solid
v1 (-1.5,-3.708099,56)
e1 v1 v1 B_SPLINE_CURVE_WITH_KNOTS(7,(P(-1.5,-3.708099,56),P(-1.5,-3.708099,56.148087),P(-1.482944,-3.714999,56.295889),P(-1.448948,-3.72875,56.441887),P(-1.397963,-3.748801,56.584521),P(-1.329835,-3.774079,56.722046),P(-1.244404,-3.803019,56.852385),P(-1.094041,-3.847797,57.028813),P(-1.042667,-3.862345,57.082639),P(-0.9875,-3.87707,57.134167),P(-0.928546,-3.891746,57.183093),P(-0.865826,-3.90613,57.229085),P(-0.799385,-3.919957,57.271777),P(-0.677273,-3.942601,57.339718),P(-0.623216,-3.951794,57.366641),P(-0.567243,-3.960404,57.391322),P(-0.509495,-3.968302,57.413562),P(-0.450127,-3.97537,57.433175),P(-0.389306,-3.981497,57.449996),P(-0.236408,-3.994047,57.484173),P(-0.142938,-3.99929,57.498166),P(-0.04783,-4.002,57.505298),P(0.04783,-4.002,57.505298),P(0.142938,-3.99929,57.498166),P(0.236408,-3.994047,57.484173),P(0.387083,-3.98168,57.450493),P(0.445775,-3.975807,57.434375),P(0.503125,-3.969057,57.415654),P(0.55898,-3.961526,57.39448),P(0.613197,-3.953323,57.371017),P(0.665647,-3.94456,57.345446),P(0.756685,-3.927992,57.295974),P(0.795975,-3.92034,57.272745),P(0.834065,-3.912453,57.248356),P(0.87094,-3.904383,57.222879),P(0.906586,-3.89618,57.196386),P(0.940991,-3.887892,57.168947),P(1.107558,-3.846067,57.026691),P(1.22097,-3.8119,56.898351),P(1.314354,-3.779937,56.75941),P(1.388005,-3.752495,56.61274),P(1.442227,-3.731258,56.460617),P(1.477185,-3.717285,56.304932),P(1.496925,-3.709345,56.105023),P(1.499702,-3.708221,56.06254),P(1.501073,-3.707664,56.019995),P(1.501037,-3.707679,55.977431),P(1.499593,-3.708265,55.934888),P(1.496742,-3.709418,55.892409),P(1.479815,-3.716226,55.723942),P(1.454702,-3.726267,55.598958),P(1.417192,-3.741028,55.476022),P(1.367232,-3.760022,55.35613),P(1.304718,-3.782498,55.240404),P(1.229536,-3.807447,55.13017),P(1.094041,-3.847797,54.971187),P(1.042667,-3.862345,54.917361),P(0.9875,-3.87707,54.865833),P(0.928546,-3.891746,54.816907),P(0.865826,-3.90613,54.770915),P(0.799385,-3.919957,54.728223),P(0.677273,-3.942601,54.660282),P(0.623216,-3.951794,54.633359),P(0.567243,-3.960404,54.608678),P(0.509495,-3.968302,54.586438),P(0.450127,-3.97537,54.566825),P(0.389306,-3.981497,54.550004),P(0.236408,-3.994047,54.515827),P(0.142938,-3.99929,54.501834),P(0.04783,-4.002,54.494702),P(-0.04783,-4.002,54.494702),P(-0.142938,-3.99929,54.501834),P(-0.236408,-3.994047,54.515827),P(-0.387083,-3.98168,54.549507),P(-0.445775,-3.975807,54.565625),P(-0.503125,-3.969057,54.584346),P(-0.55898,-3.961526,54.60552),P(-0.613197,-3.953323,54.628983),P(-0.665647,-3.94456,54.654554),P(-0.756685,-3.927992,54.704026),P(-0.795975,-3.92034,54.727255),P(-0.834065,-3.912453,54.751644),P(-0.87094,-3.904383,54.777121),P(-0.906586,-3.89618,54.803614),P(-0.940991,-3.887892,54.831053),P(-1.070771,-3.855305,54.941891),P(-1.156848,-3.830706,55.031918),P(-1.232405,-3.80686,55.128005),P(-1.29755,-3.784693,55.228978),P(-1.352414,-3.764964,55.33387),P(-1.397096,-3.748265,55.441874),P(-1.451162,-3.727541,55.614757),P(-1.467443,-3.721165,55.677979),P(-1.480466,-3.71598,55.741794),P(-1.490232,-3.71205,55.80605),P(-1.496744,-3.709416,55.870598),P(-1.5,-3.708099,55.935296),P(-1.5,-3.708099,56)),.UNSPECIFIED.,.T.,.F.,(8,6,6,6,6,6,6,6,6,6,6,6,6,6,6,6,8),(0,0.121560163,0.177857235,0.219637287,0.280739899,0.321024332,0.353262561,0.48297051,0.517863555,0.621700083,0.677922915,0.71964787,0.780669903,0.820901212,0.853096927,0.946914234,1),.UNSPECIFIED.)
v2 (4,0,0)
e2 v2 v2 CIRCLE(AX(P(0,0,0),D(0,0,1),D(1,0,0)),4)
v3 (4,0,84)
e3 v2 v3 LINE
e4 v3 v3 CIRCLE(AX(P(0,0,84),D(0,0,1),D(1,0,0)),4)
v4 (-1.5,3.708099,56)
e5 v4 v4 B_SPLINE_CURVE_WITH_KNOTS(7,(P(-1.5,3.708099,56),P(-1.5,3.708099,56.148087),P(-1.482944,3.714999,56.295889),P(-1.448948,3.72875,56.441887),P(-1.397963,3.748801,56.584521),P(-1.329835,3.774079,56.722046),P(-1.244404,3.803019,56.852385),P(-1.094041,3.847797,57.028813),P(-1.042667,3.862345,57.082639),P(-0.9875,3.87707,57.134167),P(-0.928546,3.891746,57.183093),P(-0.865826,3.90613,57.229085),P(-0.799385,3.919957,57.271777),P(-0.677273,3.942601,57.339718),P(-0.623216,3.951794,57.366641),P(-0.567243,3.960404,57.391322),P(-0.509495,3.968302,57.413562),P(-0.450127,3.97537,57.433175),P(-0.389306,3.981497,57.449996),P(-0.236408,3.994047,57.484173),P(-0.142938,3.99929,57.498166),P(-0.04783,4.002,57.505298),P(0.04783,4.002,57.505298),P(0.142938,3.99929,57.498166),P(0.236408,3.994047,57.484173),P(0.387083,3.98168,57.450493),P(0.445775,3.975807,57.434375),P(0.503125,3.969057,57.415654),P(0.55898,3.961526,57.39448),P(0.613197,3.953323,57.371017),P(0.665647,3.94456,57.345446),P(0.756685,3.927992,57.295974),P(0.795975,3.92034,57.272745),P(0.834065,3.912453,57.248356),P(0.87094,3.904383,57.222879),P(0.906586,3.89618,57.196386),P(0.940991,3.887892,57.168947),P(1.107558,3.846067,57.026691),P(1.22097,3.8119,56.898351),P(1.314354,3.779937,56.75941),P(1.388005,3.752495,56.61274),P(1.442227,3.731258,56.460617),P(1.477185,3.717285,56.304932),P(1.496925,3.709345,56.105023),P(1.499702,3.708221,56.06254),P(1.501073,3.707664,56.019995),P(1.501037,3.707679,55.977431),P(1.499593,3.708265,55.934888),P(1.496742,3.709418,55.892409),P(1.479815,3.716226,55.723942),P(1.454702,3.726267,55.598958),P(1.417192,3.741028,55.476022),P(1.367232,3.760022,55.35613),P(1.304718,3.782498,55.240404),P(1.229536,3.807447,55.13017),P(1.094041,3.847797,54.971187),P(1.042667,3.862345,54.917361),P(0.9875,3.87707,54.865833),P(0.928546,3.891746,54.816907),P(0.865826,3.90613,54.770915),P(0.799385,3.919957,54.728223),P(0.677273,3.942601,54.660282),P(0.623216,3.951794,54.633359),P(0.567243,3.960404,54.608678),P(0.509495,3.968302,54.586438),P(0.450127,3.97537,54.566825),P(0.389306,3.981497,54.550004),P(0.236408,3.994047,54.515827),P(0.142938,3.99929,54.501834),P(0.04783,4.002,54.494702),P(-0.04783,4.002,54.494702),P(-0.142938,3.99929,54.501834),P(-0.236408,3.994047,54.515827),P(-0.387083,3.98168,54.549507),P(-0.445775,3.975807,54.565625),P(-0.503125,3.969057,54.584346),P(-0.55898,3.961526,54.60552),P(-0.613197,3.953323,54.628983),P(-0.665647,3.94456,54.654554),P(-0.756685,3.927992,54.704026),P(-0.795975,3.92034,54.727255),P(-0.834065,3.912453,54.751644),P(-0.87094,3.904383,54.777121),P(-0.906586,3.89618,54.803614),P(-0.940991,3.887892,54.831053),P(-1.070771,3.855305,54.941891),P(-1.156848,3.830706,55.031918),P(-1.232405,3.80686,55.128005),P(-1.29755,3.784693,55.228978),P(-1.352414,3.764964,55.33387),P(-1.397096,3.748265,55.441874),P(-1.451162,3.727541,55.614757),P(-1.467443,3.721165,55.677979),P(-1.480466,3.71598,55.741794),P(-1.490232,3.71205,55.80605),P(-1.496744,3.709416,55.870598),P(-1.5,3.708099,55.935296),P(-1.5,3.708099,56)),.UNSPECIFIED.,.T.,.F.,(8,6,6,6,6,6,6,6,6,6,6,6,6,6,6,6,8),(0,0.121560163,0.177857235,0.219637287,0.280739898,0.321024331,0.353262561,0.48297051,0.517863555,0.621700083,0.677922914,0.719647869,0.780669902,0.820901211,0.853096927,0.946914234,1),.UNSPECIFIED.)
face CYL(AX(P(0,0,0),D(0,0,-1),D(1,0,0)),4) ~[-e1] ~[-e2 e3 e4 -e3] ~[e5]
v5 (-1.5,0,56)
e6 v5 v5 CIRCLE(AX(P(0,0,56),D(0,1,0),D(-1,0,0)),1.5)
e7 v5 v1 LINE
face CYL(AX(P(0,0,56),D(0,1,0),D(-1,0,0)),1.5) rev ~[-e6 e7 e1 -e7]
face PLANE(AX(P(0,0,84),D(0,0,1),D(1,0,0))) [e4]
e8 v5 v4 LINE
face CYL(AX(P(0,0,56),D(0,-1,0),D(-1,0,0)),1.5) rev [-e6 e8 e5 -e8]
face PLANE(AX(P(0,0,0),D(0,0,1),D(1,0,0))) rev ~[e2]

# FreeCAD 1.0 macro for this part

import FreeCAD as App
import Part
import Sketcher

V = App.Vector
Q = App.Units.Quantity

doc = App.newDocument("Part")
body = doc.addObject("PartDesign::Body", "Body")

# Sketch on XY plane
sketch1 = body.newObject("Sketcher::SketchObject", "Sketch")
sketch1.AttachmentSupport = (doc.getObject("XY_Plane"), [""])
sketch1.MapMode = "FlatFace"
sketch1.addGeometry(Part.Circle(V(0, 0, 0), V(0, 0, 1), 4), False)
sketch1.addConstraint(Sketcher.Constraint("Coincident", 0, 3, -1, 1))
sketch1.addConstraint(Sketcher.Constraint("Diameter", 0, Q("8 mm")))
pad1 = body.newObject("PartDesign::Pad", "Pad")
pad1.Profile = sketch1
pad1.Length = 84

# Sketch on XZ plane
sketch2 = body.newObject("Sketcher::SketchObject", "Sketch001")
sketch2.AttachmentSupport = (doc.getObject("XZ_Plane"), [""])
sketch2.MapMode = "FlatFace"
sketch2.addGeometry(Part.Circle(V(0, 56, 0), V(0, 0, 1), 1.5), False)
sketch2.addConstraint(Sketcher.Constraint("PointOnObject", 0, 3, -2))
sketch2.addConstraint(Sketcher.Constraint("Diameter", 0, Q("3 mm")))
sketch2.addConstraint(Sketcher.Constraint("DistanceY", -1, 1, 0, 3, Q("56 mm")))
pocket1 = body.newObject("PartDesign::Pocket", "Pocket")
pocket1.Profile = sketch2
pocket1.Length = 100
pocket1.Midplane = True

doc.recompute()
